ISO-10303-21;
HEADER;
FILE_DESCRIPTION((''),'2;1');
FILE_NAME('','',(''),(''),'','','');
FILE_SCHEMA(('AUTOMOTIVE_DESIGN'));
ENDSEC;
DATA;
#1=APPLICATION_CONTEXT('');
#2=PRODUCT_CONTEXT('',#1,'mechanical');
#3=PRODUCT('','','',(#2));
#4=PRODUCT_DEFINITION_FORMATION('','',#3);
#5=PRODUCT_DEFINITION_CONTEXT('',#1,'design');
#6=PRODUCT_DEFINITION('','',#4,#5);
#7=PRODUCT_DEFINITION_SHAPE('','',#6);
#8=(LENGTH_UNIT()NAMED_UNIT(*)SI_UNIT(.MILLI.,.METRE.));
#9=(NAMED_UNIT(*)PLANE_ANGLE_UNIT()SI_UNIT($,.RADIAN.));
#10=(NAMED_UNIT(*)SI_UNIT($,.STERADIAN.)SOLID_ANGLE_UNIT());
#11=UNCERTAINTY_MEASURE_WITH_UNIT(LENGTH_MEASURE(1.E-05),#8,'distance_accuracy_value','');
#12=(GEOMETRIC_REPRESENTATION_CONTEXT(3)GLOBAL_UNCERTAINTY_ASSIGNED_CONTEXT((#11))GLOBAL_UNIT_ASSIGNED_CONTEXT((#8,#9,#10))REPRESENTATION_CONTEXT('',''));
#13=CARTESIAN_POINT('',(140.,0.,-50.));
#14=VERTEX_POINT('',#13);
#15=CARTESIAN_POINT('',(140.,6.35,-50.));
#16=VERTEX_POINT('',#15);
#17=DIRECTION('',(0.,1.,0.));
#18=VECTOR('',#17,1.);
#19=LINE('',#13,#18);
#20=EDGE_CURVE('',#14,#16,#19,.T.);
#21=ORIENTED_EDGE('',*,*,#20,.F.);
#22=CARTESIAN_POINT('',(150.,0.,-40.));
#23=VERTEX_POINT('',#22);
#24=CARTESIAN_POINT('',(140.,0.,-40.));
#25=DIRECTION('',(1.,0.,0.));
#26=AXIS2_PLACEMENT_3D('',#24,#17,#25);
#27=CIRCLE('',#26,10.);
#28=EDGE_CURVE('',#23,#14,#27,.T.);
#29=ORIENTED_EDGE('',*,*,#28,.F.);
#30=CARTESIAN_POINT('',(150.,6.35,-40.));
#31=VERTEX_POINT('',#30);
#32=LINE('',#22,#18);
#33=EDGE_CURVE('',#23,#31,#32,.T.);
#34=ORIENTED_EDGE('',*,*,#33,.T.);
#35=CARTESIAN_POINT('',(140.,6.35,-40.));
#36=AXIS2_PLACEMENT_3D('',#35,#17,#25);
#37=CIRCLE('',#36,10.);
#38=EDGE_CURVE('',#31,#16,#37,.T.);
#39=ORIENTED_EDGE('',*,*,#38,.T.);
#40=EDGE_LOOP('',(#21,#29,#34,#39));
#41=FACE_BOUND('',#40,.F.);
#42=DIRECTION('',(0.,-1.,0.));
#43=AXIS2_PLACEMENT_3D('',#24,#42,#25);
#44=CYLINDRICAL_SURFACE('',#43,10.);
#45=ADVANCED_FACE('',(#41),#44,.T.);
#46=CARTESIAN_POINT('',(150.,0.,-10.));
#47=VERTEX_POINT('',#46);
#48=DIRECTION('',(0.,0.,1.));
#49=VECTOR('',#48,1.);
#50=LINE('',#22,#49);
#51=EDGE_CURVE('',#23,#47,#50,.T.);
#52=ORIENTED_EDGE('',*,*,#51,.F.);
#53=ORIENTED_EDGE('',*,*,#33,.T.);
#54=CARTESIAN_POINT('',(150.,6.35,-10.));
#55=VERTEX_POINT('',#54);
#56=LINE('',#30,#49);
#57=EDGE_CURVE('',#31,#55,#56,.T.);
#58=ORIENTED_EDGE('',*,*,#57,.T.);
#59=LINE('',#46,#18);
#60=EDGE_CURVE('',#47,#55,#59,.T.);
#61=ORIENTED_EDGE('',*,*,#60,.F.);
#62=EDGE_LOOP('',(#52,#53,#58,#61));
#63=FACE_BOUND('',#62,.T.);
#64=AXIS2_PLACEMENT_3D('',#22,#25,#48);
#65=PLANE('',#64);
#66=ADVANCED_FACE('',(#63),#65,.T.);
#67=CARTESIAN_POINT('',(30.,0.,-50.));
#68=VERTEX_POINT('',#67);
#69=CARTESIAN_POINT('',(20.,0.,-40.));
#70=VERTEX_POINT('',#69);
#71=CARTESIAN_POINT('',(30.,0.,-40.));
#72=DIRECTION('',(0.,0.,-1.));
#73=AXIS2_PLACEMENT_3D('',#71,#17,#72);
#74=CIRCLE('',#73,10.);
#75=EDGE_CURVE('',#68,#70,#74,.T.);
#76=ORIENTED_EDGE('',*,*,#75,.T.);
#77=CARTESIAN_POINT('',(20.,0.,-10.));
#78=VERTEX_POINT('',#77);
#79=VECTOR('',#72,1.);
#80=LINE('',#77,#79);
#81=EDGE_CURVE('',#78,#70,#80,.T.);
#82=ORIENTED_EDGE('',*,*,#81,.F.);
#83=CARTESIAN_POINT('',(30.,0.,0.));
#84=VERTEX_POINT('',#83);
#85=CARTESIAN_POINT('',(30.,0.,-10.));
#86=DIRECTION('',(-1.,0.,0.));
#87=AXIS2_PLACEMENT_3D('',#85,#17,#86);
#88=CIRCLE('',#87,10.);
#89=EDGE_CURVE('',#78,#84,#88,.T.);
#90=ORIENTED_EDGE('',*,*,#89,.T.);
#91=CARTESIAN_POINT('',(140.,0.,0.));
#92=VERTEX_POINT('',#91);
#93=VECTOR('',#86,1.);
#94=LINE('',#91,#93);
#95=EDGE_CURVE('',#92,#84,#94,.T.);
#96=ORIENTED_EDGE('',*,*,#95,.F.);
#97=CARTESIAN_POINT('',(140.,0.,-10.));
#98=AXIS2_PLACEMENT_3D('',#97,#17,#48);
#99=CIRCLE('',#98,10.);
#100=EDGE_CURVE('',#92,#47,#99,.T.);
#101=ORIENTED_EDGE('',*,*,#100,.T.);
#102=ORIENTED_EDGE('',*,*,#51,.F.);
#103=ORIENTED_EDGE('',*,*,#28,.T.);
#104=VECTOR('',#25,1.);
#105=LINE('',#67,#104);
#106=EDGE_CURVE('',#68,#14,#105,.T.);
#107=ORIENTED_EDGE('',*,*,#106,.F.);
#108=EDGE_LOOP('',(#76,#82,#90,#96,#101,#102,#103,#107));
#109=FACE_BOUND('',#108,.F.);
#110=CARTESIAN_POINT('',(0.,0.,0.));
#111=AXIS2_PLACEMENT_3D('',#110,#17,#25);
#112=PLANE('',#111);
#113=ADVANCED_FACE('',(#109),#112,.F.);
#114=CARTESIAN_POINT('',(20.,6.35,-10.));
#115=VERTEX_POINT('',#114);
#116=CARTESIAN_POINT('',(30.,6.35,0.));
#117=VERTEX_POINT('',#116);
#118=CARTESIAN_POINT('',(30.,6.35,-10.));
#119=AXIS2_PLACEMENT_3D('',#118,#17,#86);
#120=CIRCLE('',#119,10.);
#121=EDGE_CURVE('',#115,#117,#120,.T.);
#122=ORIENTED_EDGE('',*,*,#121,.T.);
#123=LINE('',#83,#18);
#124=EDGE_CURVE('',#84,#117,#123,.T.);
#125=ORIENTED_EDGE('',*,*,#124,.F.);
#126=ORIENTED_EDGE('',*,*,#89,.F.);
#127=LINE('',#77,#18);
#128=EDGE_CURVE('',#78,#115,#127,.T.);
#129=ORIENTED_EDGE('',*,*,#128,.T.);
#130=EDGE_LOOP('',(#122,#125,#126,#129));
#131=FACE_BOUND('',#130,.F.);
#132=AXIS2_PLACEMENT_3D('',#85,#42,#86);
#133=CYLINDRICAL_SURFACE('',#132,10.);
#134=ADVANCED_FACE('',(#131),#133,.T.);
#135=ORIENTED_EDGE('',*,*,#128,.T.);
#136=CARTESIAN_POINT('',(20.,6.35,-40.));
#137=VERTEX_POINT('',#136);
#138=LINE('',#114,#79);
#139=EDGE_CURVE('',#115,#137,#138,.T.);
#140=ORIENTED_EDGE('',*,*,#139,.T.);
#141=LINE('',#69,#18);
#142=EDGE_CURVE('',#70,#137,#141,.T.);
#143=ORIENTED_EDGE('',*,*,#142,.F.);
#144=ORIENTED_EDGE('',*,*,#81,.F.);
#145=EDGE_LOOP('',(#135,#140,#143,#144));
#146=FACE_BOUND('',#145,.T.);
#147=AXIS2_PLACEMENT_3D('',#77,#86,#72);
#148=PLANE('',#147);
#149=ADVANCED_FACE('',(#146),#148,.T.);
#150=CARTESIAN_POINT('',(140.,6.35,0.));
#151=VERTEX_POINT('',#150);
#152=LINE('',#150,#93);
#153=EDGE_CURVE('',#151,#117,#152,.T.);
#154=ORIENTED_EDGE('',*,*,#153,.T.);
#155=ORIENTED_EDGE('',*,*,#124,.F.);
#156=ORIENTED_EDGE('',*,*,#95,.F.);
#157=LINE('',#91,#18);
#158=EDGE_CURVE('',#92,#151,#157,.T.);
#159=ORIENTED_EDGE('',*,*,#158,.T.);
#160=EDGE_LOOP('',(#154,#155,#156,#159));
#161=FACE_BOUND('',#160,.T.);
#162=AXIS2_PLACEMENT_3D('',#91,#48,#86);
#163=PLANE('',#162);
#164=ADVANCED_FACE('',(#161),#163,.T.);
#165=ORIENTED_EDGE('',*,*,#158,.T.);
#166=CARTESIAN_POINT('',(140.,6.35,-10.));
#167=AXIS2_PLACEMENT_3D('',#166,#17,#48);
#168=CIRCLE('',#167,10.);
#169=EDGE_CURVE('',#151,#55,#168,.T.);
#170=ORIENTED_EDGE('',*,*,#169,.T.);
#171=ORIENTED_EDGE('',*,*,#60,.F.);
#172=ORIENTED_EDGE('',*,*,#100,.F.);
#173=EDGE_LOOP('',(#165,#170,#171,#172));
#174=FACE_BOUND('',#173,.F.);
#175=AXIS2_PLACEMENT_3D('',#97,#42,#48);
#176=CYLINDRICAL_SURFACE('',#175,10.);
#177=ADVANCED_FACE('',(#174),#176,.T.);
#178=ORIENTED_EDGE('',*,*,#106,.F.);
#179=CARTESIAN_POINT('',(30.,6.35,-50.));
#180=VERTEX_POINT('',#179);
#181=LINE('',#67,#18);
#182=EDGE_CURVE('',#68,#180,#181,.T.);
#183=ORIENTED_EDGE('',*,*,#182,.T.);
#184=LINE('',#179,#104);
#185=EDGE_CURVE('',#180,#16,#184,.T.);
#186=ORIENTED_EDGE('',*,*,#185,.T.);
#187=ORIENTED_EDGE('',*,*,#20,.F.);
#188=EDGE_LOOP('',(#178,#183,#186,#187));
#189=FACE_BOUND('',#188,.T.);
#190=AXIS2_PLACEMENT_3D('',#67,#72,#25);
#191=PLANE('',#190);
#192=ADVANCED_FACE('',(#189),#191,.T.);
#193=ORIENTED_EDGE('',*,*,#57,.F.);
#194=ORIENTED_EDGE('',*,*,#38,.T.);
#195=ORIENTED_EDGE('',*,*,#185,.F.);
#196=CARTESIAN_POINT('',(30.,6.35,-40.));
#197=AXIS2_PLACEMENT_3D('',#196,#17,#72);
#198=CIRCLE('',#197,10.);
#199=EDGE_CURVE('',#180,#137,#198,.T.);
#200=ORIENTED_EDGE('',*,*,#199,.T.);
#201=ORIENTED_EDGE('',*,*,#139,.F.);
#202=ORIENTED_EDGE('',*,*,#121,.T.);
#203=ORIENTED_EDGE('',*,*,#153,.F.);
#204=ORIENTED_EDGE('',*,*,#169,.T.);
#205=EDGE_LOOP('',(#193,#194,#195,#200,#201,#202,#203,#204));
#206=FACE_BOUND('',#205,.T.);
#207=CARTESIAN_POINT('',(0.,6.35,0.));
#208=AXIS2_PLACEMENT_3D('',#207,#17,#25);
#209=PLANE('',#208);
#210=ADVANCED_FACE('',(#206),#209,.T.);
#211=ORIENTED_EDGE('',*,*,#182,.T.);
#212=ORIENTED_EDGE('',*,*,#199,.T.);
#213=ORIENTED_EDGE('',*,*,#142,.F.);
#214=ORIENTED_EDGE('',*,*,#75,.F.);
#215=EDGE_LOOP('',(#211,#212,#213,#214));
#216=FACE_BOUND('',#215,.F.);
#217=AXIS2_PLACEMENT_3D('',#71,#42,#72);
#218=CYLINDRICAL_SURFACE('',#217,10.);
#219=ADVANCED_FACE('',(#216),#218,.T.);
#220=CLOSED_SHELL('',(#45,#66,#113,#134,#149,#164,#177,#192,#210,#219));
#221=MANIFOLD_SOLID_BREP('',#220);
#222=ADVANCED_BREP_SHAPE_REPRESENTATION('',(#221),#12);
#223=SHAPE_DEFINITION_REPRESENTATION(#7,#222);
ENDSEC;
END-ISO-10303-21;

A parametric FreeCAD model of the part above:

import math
import FreeCAD as App
import Part
import Sketcher

V = App.Vector
Q = App.Units.Quantity

doc = App.newDocument("Part")
body = doc.addObject("PartDesign::Body", "Body")

# Sketch on XZ plane
sketch1 = body.newObject("Sketcher::SketchObject", "Sketch")
sketch1.AttachmentSupport = (doc.getObject("XZ_Plane"), [""])
sketch1.MapMode = "FlatFace"
sketch1.addGeometry([
    Part.LineSegment(V(140, -50, 0), V(30, -50, 0)),  # 0
    Part.ArcOfCircle(Part.Circle(V(30, -40, 0), V(0, 0, 1), 10), math.radians(180), math.radians(270)),  # 1
    Part.LineSegment(V(20, -40, 0), V(20, -10, 0)),  # 2
    Part.ArcOfCircle(Part.Circle(V(30, -10, 0), V(0, 0, 1), 10), math.radians(90), math.radians(180)),  # 3
    Part.LineSegment(V(30, 0, 0), V(140, 0, 0)),  # 4
    Part.ArcOfCircle(Part.Circle(V(140, -10, 0), V(0, 0, 1), 10), math.radians(0), math.radians(90)),  # 5
    Part.LineSegment(V(150, -10, 0), V(150, -40, 0)),  # 6
    Part.ArcOfCircle(Part.Circle(V(140, -40, 0), V(0, 0, 1), 10), math.radians(-90), math.radians(0)),  # 7
], False)
sketch1.addConstraint([
    Sketcher.Constraint("Tangent", 0, 2, 1, 2),
    Sketcher.Constraint("Tangent", 1, 1, 2, 1),
    Sketcher.Constraint("Tangent", 2, 2, 3, 2),
    Sketcher.Constraint("Tangent", 3, 1, 4, 1),
    Sketcher.Constraint("Tangent", 4, 2, 5, 2),
    Sketcher.Constraint("Tangent", 5, 1, 6, 1),
    Sketcher.Constraint("Tangent", 6, 2, 7, 2),
    Sketcher.Constraint("Tangent", 7, 1, 0, 1),
    Sketcher.Constraint("Horizontal", 0),
    Sketcher.Constraint("Vertical", 2),
    Sketcher.Constraint("Horizontal", 4),
    Sketcher.Constraint("Vertical", 6),
    Sketcher.Constraint("Equal", 1, 3),
    Sketcher.Constraint("Equal", 3, 5),
    Sketcher.Constraint("Equal", 5, 7),
    Sketcher.Constraint("PointOnObject", 3, 1, -1),
    Sketcher.Constraint("Radius", 1, Q("0.3937 in")),
    Sketcher.Constraint("DistanceY", 0, 2, -1, 1, Q("1.9685 in")),
    Sketcher.Constraint("DistanceX", 0, 2, 0, 1, Q("4.3307 in")),
    Sketcher.Constraint("DistanceX", -1, 1, 1, 3, Q("1.1811 in")),
])
pad1 = body.newObject("PartDesign::Pad", "Pad")
pad1.Profile = sketch1
pad1.Length = Q("0.25 in")
pad1.Reversed = True

doc.recompute()
